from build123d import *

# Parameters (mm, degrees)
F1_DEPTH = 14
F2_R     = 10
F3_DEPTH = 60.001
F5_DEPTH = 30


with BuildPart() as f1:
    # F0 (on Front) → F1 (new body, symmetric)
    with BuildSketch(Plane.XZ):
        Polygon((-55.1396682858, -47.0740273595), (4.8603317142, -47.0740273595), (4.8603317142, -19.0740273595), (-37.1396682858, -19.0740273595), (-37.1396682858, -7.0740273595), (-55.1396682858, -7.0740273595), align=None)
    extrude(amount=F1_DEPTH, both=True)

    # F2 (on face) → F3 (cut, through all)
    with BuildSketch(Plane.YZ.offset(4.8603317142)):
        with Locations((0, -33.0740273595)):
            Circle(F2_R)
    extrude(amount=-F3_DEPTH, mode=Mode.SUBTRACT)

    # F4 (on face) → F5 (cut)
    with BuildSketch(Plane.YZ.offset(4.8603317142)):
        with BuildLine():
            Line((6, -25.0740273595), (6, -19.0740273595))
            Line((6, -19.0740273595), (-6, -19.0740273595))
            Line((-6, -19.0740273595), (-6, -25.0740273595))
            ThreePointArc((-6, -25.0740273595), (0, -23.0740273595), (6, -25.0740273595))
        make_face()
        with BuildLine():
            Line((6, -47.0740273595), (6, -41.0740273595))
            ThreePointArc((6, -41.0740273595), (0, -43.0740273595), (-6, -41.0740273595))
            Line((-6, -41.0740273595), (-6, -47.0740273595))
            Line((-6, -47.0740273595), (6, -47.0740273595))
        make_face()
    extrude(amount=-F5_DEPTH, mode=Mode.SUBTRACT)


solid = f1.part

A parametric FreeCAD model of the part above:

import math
import FreeCAD as App
import Part
import Sketcher

V = App.Vector
Q = App.Units.Quantity


def add_polygon(sketch, points):
    """Adds a closed chain of lines whose ends are joined by coincident constraints."""
    first, n = sketch.GeometryCount, len(points)
    for a, b in zip(points, points[1:] + points[:1]):
        sketch.addGeometry(Part.LineSegment(App.Vector(*a, 0), App.Vector(*b, 0)), False)
    for i in range(n):
        sketch.addConstraint(Sketcher.Constraint("Coincident", first + i, 2, first + (i + 1) % n, 1))

doc = App.newDocument("Part")
body = doc.addObject("PartDesign::Body", "Body")

sketch1 = body.newObject("Sketcher::SketchObject", "Sketch")
sketch1.AttachmentSupport = (doc.getObject("XZ_Plane"), [""])
sketch1.MapMode = "FlatFace"
add_polygon(sketch1, [(-55, -47), (5, -47), (5, -19), (-37, -19), (-37, -7), (-55, -7)])
sketch1.addConstraint([
    Sketcher.Constraint("Horizontal", 0),
    Sketcher.Constraint("Vertical", 1),
    Sketcher.Constraint("Horizontal", 2),
    Sketcher.Constraint("Vertical", 3),
    Sketcher.Constraint("Horizontal", 4),
    Sketcher.Constraint("Vertical", 5),
    Sketcher.Constraint("DistanceX", 0, 1, 0, 2, Q("60 mm")),
    Sketcher.Constraint("DistanceX", 2, 2, 2, 1, Q("42 mm")),
    Sketcher.Constraint("DistanceY", 1, 1, 1, 2, Q("28 mm")),
    Sketcher.Constraint("DistanceY", 3, 1, 3, 2, Q("12 mm")),
    Sketcher.Constraint("DistanceX", -1, 1, 0, 2, Q("4.860332 mm")),
    Sketcher.Constraint("DistanceY", 0, 2, -1, 1, Q("47.074027 mm")),
])
pad1 = body.newObject("PartDesign::Pad", "Pad")
pad1.Profile = sketch1
pad1.Length = 28
pad1.Midplane = True

sketch2 = body.newObject("Sketcher::SketchObject", "Sketch001")
sketch2.AttachmentSupport = (doc.getObject("YZ_Plane"), [""])
sketch2.MapMode = "FlatFace"
sketch2.AttachmentOffset = App.Placement(V(0, 0, 4.860332), App.Rotation())
sketch2.addGeometry(Part.Circle(V(0, -33, 0), V(0, 0, 1), 10), False)
sketch2.addConstraint([
    Sketcher.Constraint("PointOnObject", 0, 3, -2),
    Sketcher.Constraint("Diameter", 0, Q("20 mm")),
    Sketcher.Constraint("DistanceY", 0, 3, -1, 1, Q("33.074027 mm")),
])
pocket1 = body.newObject("PartDesign::Pocket", "Pocket")
pocket1.Profile = sketch2
pocket1.Type = "ThroughAll"

sketch3 = body.newObject("Sketcher::SketchObject", "Sketch002")
sketch3.AttachmentSupport = (doc.getObject("YZ_Plane"), [""])
sketch3.MapMode = "FlatFace"
sketch3.AttachmentOffset = App.Placement(V(0, 0, 4.860332), App.Rotation())
sketch3.addGeometry([
    Part.LineSegment(V(6, -25, 0), V(6, -19, 0)),
    Part.LineSegment(V(6, -19, 0), V(-6, -19, 0)),
    Part.LineSegment(V(-6, -19, 0), V(-6, -25, 0)),
    Part.ArcOfCircle(Part.Circle(V(0, -33, 0), V(0, 0, 1), 10), math.radians(53), math.radians(127)),
    Part.LineSegment(V(6, -47, 0), V(6, -41, 0)),
    Part.ArcOfCircle(Part.Circle(V(0, -33, 0), V(0, 0, 1), 10), math.radians(-127), math.radians(-53)),
    Part.LineSegment(V(-6, -41, 0), V(-6, -47, 0)),
    Part.LineSegment(V(-6, -47, 0), V(6, -47, 0)),
], False)
sketch3.addConstraint([
    Sketcher.Constraint("Coincident", 0, 2, 1, 1),
    Sketcher.Constraint("Coincident", 1, 2, 2, 1),
    Sketcher.Constraint("Coincident", 2, 2, 3, 2),
    Sketcher.Constraint("Coincident", 3, 1, 0, 1),
    Sketcher.Constraint("Coincident", 4, 2, 5, 2),
    Sketcher.Constraint("Coincident", 5, 1, 6, 1),
    Sketcher.Constraint("Coincident", 6, 2, 7, 1),
    Sketcher.Constraint("Coincident", 7, 2, 4, 1),
    Sketcher.Constraint("Vertical", 0),
    Sketcher.Constraint("Horizontal", 1),
    Sketcher.Constraint("Vertical", 2),
    Sketcher.Constraint("Vertical", 4),
    Sketcher.Constraint("Vertical", 6),
    Sketcher.Constraint("Horizontal", 7),
    Sketcher.Constraint("Coincident", 5, 3, 3, 3),
    Sketcher.Constraint("Equal", 3, 5),
    Sketcher.Constraint("Symmetric", 2, 2, 3, 1, -2),
    Sketcher.Constraint("Horizontal", 4, 2, 5, 1),
    Sketcher.Constraint("Vertical", 3, 1, 4, 2),
    Sketcher.Constraint("Equal", 2, 4),
    Sketcher.Constraint("Radius", 3, Q("10 mm")),
    Sketcher.Constraint("DistanceX", 1, 2, 1, 1, Q("12 mm")),
    Sketcher.Constraint("DistanceY", 0, 1, 0, 2, Q("6 mm")),
    Sketcher.Constraint("DistanceY", 3, 3, -1, 1, Q("33.074027 mm")),
])
pocket2 = body.newObject("PartDesign::Pocket", "Pocket001")
pocket2.Profile = sketch3
pocket2.Length = 30

doc.recompute()
